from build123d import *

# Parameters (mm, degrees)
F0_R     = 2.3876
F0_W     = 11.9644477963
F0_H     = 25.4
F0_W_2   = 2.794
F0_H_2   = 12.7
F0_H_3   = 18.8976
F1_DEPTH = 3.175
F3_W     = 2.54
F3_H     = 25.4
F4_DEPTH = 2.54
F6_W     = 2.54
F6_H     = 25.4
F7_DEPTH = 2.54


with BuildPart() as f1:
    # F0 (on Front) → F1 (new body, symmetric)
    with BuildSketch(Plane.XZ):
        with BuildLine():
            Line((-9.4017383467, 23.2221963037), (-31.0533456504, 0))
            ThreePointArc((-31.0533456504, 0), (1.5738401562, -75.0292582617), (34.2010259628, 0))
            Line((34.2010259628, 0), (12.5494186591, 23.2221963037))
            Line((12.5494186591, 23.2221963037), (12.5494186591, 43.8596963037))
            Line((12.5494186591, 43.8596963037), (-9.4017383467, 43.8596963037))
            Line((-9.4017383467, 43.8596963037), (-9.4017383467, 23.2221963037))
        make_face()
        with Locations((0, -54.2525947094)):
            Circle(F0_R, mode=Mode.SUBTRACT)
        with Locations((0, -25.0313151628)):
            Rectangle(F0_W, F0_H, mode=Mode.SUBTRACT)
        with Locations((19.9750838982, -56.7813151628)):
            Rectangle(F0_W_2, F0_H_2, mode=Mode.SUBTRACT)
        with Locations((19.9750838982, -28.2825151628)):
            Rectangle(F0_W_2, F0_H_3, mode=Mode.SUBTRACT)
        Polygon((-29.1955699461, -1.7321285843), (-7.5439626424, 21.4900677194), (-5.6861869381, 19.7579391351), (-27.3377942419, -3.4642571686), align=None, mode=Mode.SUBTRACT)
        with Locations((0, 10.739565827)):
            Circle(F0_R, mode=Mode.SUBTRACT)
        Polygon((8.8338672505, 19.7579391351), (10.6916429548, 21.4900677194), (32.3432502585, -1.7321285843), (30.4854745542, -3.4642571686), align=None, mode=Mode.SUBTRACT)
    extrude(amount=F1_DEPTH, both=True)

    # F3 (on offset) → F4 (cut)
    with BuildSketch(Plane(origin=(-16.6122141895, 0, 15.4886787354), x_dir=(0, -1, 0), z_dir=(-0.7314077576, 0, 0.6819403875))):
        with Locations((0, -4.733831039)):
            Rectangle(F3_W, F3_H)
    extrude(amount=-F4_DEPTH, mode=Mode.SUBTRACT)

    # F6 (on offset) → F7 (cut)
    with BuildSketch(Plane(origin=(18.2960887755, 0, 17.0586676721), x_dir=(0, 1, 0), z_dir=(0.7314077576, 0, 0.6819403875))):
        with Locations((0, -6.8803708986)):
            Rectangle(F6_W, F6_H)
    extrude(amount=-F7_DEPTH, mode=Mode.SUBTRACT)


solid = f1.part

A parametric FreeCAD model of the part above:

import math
import FreeCAD as App
import Part
import Sketcher
from FreeCAD import Vector
Q = App.Units.Quantity


def add_polygon(sketch, points):
    """Adds a closed chain of lines whose ends are joined by coincident constraints."""
    first, n = sketch.GeometryCount, len(points)
    for a, b in zip(points, points[1:] + points[:1]):
        sketch.addGeometry(Part.LineSegment(App.Vector(*a, 0), App.Vector(*b, 0)), False)
    for i in range(n):
        sketch.addConstraint(Sketcher.Constraint("Coincident", first + i, 2, first + (i + 1) % n, 1))

doc = App.newDocument("Part")
body = doc.addObject("PartDesign::Body", "Body")

# Sketch on XZ plane
sketch1 = body.newObject("Sketcher::SketchObject", "Sketch")
sketch1.AttachmentSupport = (doc.getObject("XZ_Plane"), [""])
sketch1.MapMode = "FlatFace"
sketch1.addGeometry(Part.LineSegment(Vector(-9.401738, 23.222196, 0), Vector(-31.053346, 0, 0)), False)  # 0
sketch1.addGeometry(Part.ArcOfCircle(Part.Circle(Vector(1.57384, -30.420508, 0), Vector(0, 0, 1), 44.60875), math.radians(137.004542), math.radians(402.995458)), False)  # 1
sketch1.addGeometry(Part.LineSegment(Vector(34.201026, 0, 0), Vector(12.549419, 23.222196, 0)), False)  # 2
sketch1.addGeometry(Part.LineSegment(Vector(12.549419, 23.222196, 0), Vector(12.549419, 43.859696, 0)), False)  # 3
sketch1.addGeometry(Part.LineSegment(Vector(12.549419, 43.859696, 0), Vector(-9.401738, 43.859696, 0)), False)  # 4
sketch1.addGeometry(Part.LineSegment(Vector(-9.401738, 43.859696, 0), Vector(-9.401738, 23.222196, 0)), False)  # 5
sketch1.addGeometry(Part.Circle(Vector(0, -54.252595, 0), Vector(0, 0, 1), 2.3876), False)  # 6
add_polygon(sketch1, [(5.982224, -37.731315), (-5.982224, -37.731315), (-5.982224, -12.331315), (5.982224, -12.331315)])  # lines 7-10
add_polygon(sketch1, [(21.372084, -63.131315), (18.578084, -63.131315), (18.578084, -50.431315), (21.372084, -50.431315)])  # lines 11-14
add_polygon(sketch1, [(21.372084, -37.731315), (18.578084, -37.731315), (18.578084, -18.833715), (21.372084, -18.833715)])  # lines 15-18
add_polygon(sketch1, [(-27.337794, -3.464257), (-29.19557, -1.732129), (-7.543963, 21.490068), (-5.686187, 19.757939)])  # lines 19-22
sketch1.addGeometry(Part.Circle(Vector(0, 10.739566, 0), Vector(0, 0, 1), 2.3876), False)  # 23
add_polygon(sketch1, [(30.485475, -3.464257), (8.833867, 19.757939), (10.691643, 21.490068), (32.34325, -1.732129)])  # lines 24-27
sketch1.addConstraint([
    Sketcher.Constraint("Tangent", 0, 2, 1, 1),
    Sketcher.Constraint("Tangent", 1, 2, 2, 1),
    Sketcher.Constraint("Coincident", 2, 2, 3, 1),
    Sketcher.Constraint("Coincident", 3, 2, 4, 1),
    Sketcher.Constraint("Coincident", 4, 2, 5, 1),
    Sketcher.Constraint("Coincident", 5, 2, 0, 1),
    Sketcher.Constraint("Vertical", 3),
    Sketcher.Constraint("Horizontal", 4),
    Sketcher.Constraint("Vertical", 5),
    Sketcher.Constraint("Horizontal", 7),
    Sketcher.Constraint("Vertical", 8),
    Sketcher.Constraint("Horizontal", 9),
    Sketcher.Constraint("Vertical", 10),
    Sketcher.Constraint("Horizontal", 11),
    Sketcher.Constraint("Vertical", 12),
    Sketcher.Constraint("Horizontal", 13),
    Sketcher.Constraint("Vertical", 14),
    Sketcher.Constraint("Horizontal", 15),
    Sketcher.Constraint("Vertical", 16),
    Sketcher.Constraint("Horizontal", 17),
    Sketcher.Constraint("Vertical", 18),
    Sketcher.Constraint("Equal", 6, 23),
    Sketcher.Constraint("PointOnObject", 6, 3, -2),
    Sketcher.Constraint("PointOnObject", 23, 3, -2),
    Sketcher.Constraint("PointOnObject", 0, 2, -1),
    Sketcher.Constraint("PointOnObject", 1, 2, -1),
    Sketcher.Constraint("Perpendicular", 0, 19),
    Sketcher.Constraint("Perpendicular", 19, 20),
    Sketcher.Constraint("Perpendicular", 20, 21),
    Sketcher.Constraint("Perpendicular", 21, 22),
    Sketcher.Constraint("Parallel", 2, 24),
    Sketcher.Constraint("Perpendicular", 24, 25),
    Sketcher.Constraint("Perpendicular", 25, 26),
    Sketcher.Constraint("Perpendicular", 26, 27),
    Sketcher.Constraint("Horizontal", 2, 2, 5, 2),
    Sketcher.Constraint("Horizontal", 10, 2, 15, 2),
    Sketcher.Constraint("Horizontal", 21, 2, 24, 2),
    Sketcher.Constraint("Horizontal", 20, 2, 25, 2),
    Sketcher.Constraint("Horizontal", 19, 2, 26, 2),
    Sketcher.Constraint("Vertical", 12, 2, 15, 2),
    Sketcher.Constraint("Vertical", 14, 2, 17, 2),
    Sketcher.Constraint("Equal", 2, 20),
    Sketcher.Constraint("DistanceY", 8, 1, 8, 2, Q("1 in")),
    Sketcher.Constraint("Diameter", 6, Q("0.188 in")),
    Sketcher.Constraint("DistanceY", 12, 1, 12, 2, Q("0.5 in")),
    Sketcher.Constraint("DistanceY", 11, 2, 10, 2, Q("1 in")),
    Sketcher.Constraint("Distance", 19, Q("0.1 in")),
    Sketcher.Constraint("DistanceX", 11, 2, 11, 1, Q("0.11 in")),
    Sketcher.Constraint("Distance", 0, Q("1.25 in")),
    Sketcher.Constraint("DistanceY", 3, 1, 3, 2, Q("0.8125 in")),
    Sketcher.Constraint("DistanceY", 16, 1, 16, 2, Q("0.744 in")),
    Sketcher.Constraint("Radius", 1, Q("44.60875 mm")),
    Sketcher.Constraint("DistanceX", 10, 2, 11, 2, Q("0.4959 in")),
    Sketcher.Constraint("DistanceY", 23, 3, 20, 2, Q("10.750502 mm")),
    Sketcher.Constraint("DistanceX", 4, 2, 4, 1, Q("21.951157 mm")),
    Sketcher.Constraint("DistanceX", 7, 2, 7, 1, Q("11.964448 mm")),
    Sketcher.Constraint("DistanceX", -1, 1, 1, 3, Q("1.57384 mm")),
    Sketcher.Constraint("DistanceX", 19, 2, -1, 1, Q("29.19557 mm")),
    Sketcher.Constraint("DistanceY", 19, 2, -1, 1, Q("1.732129 mm")),
    Sketcher.Constraint("DistanceX", -1, 1, 26, 2, Q("32.34325 mm")),
    Sketcher.Constraint("DistanceY", 6, 3, 23, 3, Q("64.992161 mm")),
    Sketcher.Constraint("DistanceY", 6, 3, 7, 2, Q("16.52128 mm")),
    Sketcher.Constraint("DistanceX", 0, 2, 7, 2, Q("25.071122 mm")),
])
pad1 = body.newObject("PartDesign::Pad", "Pad")
pad1.Profile = sketch1
pad1.Length = Q("0.25 in")
pad1.Midplane = True

# Sketch on an angled plane
sketch2 = body.newObject("Sketcher::SketchObject", "Sketch001")
sketch2.Placement = App.Placement(Vector(-16.612214, 0, 15.488679), App.Rotation(Vector(0, -1, 0), Vector(0.681940388, 0, 0.731407758), Vector(-0.731407758, 0, 0.681940388), "ZXY"))
add_polygon(sketch2, [(-1.27, 7.966169), (-1.27, -17.433831), (1.27, -17.433831), (1.27, 7.966169)])  # lines 0-3
sketch2.addConstraint([
    Sketcher.Constraint("Vertical", 0),
    Sketcher.Constraint("Horizontal", 1),
    Sketcher.Constraint("Vertical", 2),
    Sketcher.Constraint("Horizontal", 3),
    Sketcher.Constraint("DistanceY", 0, 2, 0, 1, Q("1 in")),
    Sketcher.Constraint("DistanceX", 1, 1, 1, 2, Q("0.1 in")),
    Sketcher.Constraint("DistanceX", 0, 2, -1, 1, Q("0.05 in")),
    Sketcher.Constraint("DistanceY", 0, 2, -1, 1, Q("17.433831 mm")),
])
pocket1 = body.newObject("PartDesign::Pocket", "Pocket")
pocket1.Profile = sketch2
pocket1.Length = Q("0.1 in")

# Sketch on an angled plane
sketch3 = body.newObject("Sketcher::SketchObject", "Sketch002")
sketch3.Placement = App.Placement(Vector(18.296089, 0, 17.058668), App.Rotation(Vector(0, 1, 0), Vector(-0.681940388, 0, 0.731407758), Vector(0.731407758, 0, 0.681940388), "ZXY"))
add_polygon(sketch3, [(-1.27, 5.819629), (-1.27, -19.580371), (1.27, -19.580371), (1.27, 5.819629)])  # lines 0-3
sketch3.addConstraint([
    Sketcher.Constraint("Vertical", 0),
    Sketcher.Constraint("Horizontal", 1),
    Sketcher.Constraint("Vertical", 2),
    Sketcher.Constraint("Horizontal", 3),
    Sketcher.Constraint("DistanceY", 0, 2, 0, 1, Q("1 in")),
    Sketcher.Constraint("DistanceX", 1, 1, 1, 2, Q("0.1 in")),
    Sketcher.Constraint("DistanceX", 0, 2, -1, 1, Q("0.05 in")),
    Sketcher.Constraint("DistanceY", 0, 2, -1, 1, Q("19.580371 mm")),
])
pocket2 = body.newObject("PartDesign::Pocket", "Pocket001")
pocket2.Profile = sketch3
pocket2.Length = Q("0.1 in")

doc.recompute()
